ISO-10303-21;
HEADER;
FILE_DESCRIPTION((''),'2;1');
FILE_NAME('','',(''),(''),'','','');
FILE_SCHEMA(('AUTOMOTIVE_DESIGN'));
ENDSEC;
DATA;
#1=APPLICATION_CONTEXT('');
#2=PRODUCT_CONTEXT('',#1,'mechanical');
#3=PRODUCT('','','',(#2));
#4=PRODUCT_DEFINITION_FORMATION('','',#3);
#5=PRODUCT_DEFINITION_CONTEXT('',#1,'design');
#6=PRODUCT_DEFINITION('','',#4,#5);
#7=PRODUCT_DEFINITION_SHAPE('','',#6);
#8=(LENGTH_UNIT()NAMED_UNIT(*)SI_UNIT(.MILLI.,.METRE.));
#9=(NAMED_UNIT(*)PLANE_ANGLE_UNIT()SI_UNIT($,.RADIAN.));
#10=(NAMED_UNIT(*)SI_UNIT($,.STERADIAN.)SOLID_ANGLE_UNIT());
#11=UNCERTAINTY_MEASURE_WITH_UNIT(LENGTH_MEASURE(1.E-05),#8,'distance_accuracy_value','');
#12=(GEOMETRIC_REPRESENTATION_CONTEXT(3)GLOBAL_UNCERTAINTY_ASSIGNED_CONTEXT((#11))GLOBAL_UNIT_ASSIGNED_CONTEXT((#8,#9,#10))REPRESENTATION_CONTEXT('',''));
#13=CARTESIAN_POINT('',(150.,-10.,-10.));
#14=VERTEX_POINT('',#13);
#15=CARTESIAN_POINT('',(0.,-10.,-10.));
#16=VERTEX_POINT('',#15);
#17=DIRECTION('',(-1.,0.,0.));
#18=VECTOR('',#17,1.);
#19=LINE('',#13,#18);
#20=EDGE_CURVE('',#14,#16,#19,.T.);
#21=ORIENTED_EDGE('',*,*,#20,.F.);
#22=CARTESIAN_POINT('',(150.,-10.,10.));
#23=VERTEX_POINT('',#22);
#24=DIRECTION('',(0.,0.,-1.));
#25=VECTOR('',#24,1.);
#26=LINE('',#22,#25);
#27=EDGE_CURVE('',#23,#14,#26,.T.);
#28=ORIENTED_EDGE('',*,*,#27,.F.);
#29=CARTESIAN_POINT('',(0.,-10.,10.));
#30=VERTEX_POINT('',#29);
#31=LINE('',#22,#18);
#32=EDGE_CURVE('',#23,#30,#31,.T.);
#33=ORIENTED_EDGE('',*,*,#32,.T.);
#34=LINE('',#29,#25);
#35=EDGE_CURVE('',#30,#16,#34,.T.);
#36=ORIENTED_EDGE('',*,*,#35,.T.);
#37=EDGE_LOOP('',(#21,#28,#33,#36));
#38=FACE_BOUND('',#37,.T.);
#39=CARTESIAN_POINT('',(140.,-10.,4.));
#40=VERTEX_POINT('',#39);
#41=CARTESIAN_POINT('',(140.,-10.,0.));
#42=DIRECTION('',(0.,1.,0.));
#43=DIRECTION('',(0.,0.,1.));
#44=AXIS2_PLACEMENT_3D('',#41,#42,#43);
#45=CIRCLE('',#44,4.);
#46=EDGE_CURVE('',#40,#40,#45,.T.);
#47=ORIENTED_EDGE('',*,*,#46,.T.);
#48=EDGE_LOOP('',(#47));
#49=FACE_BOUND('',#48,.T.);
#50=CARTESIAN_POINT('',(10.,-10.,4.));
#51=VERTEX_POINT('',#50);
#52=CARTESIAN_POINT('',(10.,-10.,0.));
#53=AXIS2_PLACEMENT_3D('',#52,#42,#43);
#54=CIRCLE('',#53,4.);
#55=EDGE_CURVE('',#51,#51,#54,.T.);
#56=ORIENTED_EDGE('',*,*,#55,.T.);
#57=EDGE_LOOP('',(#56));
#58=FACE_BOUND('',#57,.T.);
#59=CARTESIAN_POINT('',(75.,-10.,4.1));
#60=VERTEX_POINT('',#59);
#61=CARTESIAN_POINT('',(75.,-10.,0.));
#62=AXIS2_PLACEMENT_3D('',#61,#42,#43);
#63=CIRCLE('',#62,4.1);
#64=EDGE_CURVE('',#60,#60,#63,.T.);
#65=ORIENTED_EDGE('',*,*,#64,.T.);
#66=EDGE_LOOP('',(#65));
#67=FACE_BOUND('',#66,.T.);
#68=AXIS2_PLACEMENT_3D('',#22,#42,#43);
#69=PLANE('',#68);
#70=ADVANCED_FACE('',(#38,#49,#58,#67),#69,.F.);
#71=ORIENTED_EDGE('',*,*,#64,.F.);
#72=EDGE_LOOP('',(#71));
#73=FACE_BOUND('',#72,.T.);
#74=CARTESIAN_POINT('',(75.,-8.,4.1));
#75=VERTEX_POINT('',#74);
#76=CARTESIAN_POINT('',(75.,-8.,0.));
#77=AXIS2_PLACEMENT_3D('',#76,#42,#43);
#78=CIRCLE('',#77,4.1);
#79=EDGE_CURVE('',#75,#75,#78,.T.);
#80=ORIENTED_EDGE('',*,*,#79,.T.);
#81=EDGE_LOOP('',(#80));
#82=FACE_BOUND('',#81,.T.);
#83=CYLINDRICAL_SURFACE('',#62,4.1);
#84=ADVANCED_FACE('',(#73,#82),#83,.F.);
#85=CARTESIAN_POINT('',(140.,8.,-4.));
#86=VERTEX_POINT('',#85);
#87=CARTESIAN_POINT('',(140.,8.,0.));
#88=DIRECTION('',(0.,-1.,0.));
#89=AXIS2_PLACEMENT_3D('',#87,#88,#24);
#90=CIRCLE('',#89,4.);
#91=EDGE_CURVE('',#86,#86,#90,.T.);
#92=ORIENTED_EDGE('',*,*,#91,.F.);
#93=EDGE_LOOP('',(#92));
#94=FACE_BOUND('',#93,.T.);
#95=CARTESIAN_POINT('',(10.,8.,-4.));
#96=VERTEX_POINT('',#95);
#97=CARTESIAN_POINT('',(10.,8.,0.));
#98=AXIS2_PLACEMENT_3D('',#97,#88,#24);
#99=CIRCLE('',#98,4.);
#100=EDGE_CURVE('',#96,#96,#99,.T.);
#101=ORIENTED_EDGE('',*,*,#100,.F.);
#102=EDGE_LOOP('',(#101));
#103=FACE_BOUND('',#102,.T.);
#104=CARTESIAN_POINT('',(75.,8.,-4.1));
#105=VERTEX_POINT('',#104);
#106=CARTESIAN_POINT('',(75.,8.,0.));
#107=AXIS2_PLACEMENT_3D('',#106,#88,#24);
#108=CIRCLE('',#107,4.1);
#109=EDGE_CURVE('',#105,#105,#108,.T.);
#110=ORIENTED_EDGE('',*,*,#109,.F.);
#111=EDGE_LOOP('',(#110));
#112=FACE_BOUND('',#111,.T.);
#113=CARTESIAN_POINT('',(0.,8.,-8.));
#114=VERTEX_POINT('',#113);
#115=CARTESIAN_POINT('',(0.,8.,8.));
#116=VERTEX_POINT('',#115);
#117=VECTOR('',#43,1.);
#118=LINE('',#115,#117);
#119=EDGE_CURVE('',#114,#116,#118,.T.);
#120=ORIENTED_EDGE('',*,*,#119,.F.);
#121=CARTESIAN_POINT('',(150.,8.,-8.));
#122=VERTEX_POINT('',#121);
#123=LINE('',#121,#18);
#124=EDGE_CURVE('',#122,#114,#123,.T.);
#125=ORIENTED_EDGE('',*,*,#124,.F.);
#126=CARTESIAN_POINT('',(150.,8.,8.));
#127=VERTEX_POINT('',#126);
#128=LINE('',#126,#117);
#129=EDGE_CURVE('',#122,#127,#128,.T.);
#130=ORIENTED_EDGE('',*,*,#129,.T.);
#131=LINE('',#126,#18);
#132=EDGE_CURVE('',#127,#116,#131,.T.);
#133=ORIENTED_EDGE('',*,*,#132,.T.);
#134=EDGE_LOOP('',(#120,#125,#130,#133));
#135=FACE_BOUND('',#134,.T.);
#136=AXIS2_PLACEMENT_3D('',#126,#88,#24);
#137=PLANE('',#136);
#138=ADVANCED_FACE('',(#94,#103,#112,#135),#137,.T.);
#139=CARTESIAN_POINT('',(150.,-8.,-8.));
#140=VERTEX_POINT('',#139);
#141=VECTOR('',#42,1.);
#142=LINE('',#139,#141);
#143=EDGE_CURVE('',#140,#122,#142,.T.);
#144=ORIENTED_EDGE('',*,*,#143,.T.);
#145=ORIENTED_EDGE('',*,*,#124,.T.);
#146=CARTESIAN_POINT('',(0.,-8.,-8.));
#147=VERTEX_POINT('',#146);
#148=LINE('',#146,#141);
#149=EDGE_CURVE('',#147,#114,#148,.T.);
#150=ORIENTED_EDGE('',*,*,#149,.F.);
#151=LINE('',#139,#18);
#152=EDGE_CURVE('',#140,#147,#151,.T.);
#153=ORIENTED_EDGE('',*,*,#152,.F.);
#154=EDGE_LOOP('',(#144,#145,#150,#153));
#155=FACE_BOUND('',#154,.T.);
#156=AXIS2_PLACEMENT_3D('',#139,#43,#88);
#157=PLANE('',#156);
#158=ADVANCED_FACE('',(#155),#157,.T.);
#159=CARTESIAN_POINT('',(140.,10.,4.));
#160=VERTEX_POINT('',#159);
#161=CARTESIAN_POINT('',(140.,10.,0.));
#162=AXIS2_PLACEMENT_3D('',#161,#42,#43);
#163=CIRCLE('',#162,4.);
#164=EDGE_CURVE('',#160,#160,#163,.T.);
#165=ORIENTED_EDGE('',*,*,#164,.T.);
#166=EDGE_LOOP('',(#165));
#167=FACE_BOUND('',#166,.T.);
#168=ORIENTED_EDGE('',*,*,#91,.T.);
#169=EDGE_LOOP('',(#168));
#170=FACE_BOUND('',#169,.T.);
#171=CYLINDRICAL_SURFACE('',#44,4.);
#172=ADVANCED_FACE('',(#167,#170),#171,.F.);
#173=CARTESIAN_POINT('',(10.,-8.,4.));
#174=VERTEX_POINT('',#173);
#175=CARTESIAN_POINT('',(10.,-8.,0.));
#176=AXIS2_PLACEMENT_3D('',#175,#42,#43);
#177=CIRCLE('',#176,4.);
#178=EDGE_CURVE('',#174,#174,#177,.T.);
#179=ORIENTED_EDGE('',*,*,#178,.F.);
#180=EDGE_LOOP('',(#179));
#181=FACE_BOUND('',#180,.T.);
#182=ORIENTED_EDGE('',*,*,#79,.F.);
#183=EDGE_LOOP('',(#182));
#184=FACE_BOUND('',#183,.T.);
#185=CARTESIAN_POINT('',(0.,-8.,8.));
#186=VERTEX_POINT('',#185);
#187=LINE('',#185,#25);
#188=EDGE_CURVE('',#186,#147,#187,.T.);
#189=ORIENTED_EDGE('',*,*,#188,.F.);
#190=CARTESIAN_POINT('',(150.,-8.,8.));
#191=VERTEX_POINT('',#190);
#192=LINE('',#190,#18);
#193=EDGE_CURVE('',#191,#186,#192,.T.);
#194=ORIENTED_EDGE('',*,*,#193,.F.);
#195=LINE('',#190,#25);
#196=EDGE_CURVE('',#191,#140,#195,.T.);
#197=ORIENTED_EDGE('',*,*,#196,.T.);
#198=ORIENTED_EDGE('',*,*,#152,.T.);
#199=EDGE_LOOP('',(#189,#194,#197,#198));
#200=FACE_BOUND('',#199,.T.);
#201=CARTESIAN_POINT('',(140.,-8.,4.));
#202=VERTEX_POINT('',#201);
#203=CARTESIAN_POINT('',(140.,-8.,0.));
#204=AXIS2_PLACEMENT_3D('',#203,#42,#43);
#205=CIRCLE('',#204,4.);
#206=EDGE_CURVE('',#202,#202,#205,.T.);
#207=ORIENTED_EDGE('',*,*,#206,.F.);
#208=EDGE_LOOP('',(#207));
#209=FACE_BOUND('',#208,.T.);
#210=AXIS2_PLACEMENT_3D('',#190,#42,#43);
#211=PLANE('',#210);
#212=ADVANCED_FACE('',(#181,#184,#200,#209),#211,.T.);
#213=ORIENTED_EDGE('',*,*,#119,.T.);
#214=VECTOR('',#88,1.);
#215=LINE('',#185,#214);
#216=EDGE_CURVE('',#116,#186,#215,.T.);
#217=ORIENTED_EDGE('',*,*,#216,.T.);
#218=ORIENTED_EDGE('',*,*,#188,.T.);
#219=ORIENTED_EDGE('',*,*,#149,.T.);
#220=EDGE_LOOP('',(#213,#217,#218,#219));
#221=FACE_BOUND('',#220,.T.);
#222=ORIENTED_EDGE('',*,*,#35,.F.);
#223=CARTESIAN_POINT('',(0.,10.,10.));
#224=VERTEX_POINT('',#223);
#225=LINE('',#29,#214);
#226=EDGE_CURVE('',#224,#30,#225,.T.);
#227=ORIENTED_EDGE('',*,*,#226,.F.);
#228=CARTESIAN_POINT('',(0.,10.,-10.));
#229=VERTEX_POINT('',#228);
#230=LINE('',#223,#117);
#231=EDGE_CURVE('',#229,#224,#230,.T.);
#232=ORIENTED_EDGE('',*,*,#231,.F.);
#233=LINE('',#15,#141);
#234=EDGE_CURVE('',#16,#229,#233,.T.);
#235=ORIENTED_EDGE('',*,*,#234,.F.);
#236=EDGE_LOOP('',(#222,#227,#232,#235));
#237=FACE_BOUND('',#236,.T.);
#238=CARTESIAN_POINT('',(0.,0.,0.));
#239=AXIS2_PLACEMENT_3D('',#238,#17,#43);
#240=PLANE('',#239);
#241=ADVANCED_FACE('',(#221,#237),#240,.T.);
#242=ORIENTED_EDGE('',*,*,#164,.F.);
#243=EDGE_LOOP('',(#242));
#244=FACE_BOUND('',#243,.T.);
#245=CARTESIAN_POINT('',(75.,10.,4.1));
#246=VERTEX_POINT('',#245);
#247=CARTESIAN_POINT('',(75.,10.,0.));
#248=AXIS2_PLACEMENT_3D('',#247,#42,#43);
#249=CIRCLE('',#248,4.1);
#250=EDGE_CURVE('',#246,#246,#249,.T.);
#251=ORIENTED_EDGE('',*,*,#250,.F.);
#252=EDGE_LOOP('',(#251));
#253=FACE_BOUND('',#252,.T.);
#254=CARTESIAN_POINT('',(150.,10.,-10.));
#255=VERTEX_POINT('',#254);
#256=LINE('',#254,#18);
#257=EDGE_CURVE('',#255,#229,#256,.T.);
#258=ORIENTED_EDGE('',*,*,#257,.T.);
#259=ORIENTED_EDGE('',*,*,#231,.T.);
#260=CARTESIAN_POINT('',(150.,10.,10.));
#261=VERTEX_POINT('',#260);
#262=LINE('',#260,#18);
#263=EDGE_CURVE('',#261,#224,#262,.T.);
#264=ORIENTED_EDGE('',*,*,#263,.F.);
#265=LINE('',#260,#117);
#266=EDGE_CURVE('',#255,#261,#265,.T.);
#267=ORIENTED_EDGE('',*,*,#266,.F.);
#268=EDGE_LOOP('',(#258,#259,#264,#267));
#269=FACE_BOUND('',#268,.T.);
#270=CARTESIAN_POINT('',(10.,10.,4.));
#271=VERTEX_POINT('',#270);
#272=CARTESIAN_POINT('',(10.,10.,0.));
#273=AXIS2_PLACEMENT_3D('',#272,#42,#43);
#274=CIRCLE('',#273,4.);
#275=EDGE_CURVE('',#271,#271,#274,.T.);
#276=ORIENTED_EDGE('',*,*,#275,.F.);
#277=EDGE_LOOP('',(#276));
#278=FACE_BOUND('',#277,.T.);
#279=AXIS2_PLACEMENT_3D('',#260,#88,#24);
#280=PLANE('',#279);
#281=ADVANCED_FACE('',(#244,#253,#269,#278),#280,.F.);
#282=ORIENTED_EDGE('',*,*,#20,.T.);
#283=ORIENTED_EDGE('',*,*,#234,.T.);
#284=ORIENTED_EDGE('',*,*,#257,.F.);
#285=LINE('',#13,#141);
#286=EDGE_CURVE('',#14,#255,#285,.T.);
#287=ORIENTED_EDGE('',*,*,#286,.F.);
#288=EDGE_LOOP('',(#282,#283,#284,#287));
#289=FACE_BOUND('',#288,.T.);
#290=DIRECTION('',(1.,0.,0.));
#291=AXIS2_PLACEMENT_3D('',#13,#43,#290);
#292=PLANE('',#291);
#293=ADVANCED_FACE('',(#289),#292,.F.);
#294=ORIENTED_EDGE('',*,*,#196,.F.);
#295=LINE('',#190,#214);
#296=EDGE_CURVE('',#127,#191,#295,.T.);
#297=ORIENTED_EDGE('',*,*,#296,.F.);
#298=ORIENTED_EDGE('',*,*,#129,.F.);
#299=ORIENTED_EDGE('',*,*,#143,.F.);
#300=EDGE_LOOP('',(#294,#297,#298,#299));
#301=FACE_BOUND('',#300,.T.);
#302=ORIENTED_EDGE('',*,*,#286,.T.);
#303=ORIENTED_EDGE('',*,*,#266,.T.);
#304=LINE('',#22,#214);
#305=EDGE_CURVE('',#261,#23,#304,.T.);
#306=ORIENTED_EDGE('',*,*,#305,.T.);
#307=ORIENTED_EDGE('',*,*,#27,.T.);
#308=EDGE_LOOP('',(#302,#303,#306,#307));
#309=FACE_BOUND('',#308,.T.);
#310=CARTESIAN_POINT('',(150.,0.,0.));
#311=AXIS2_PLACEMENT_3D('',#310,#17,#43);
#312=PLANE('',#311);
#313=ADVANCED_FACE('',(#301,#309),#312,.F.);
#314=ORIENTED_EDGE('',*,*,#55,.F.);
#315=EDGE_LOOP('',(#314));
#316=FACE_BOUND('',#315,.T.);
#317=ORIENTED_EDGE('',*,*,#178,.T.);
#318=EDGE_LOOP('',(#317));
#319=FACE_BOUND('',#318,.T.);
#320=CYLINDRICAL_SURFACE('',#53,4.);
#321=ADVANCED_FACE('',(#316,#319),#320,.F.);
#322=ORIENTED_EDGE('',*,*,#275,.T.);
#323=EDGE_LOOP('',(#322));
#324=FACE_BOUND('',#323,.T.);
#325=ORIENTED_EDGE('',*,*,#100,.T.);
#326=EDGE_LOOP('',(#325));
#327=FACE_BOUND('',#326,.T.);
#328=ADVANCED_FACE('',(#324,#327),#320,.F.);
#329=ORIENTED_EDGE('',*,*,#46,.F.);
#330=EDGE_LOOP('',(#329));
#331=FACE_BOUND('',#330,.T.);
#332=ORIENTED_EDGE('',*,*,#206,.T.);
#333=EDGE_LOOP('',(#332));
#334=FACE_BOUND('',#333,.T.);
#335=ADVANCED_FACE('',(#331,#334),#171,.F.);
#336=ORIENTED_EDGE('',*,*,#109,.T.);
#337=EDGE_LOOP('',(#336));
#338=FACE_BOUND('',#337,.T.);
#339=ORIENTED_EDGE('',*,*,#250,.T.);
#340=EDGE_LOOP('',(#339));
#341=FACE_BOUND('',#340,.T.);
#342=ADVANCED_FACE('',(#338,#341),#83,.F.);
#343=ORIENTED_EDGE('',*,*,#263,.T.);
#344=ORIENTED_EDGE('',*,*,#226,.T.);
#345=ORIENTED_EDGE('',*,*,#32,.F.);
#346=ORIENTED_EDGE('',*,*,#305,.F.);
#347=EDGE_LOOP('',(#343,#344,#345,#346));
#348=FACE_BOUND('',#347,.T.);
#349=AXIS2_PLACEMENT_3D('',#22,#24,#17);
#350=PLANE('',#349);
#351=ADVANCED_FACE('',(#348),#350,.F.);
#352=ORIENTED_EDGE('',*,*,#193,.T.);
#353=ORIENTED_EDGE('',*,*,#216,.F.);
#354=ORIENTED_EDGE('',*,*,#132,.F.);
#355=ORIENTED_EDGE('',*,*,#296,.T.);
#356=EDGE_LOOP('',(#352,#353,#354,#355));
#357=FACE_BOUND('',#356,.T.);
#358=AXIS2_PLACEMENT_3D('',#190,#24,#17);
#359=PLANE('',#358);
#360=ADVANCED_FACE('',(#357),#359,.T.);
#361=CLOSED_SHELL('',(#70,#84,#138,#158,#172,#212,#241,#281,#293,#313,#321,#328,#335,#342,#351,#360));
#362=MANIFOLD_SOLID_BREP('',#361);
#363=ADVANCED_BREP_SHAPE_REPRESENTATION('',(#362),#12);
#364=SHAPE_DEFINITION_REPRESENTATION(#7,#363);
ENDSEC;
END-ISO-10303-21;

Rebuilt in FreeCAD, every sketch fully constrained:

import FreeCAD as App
import Part
import Sketcher
Q = App.Units.Quantity


def add_polygon(sketch, points):
    """Adds a closed chain of lines whose ends are joined by coincident constraints."""
    first, n = sketch.GeometryCount, len(points)
    for a, b in zip(points, points[1:] + points[:1]):
        sketch.addGeometry(Part.LineSegment(App.Vector(*a, 0), App.Vector(*b, 0)), False)
    for i in range(n):
        sketch.addConstraint(Sketcher.Constraint("Coincident", first + i, 2, first + (i + 1) % n, 1))

doc = App.newDocument("Part")
params = doc.addObject("Spreadsheet::Sheet", "Params")
for row, (alias, value) in enumerate([
    ("sketch1_width", "20 mm"),
    ("sketch1_width2", "16 mm"),
    ("pad1_length", "150 mm"),
    ("sketch2_diameter", "8 mm"),
    ("sketch3_diameter", "8.2 mm"),
], start=1):
    params.set(f"A{row}", alias)
    params.set(f"B{row}", "=" + value)
    params.setAlias(f"B{row}", alias)

body = doc.addObject("PartDesign::Body", "Body")

# Sketch on YZ plane
sketch1 = doc.addObject("Sketcher::SketchObject", "Sketch")
body.addObject(sketch1)
sketch1.AttachmentSupport = (doc.YZ_Plane, [""])
sketch1.MapMode = "FlatFace"
add_polygon(sketch1, [(10, 10), (-10, 10), (-10, -10), (10, -10)])  # lines 0-3
add_polygon(sketch1, [(-8, -8), (-8, 8), (8, 8), (8, -8)])  # lines 4-7
sketch1.addConstraint(Sketcher.Constraint("Horizontal", 0))
sketch1.addConstraint(Sketcher.Constraint("Vertical", 1))
sketch1.addConstraint(Sketcher.Constraint("Horizontal", 2))
sketch1.addConstraint(Sketcher.Constraint("Vertical", 3))
sketch1.addConstraint(Sketcher.Constraint("Vertical", 4))
sketch1.addConstraint(Sketcher.Constraint("Horizontal", 5))
sketch1.addConstraint(Sketcher.Constraint("Vertical", 6))
sketch1.addConstraint(Sketcher.Constraint("Horizontal", 7))
sketch1.addConstraint(Sketcher.Constraint("Symmetric", 0, 2, 2, 2, -1, 1))
sketch1.addConstraint(Sketcher.Constraint("Symmetric", 4, 2, 6, 2, -1, 1))
sketch1.addConstraint(Sketcher.Constraint("Equal", 2, 1))
sketch1.addConstraint(Sketcher.Constraint("Equal", 7, 4))
sketch1.addConstraint(Sketcher.Constraint("DistanceX", 0, 2, 0, 1, Q("20 mm")))
sketch1.addConstraint(Sketcher.Constraint("DistanceX", 5, 1, 5, 2, Q("16 mm")))
sketch1.setExpression("Constraints[20]", "Params.sketch1_width")
sketch1.setExpression("Constraints[21]", "Params.sketch1_width2")
pad1 = doc.addObject("PartDesign::Pad", "Pad")
body.addObject(pad1)
pad1.Profile = sketch1
pad1.setExpression("Length", "Params.pad1_length")

# Sketch on XZ plane
sketch2 = doc.addObject("Sketcher::SketchObject", "Sketch001")
body.addObject(sketch2)
sketch2.AttachmentSupport = (doc.XZ_Plane, [""])
sketch2.MapMode = "FlatFace"
sketch2.AttachmentOffset = App.Placement(App.Vector(0, 0, -10), App.Rotation())
sketch2.addGeometry(Part.Circle(App.Vector(10, 0, 0), App.Vector(0, 0, 1), 4), False)
sketch2.addGeometry(Part.Circle(App.Vector(140, 0, 0), App.Vector(0, 0, 1), 4), False)
sketch2.addConstraint(Sketcher.Constraint("Equal", 0, 1))
sketch2.addConstraint(Sketcher.Constraint("PointOnObject", 0, 3, -1))
sketch2.addConstraint(Sketcher.Constraint("PointOnObject", 1, 3, -1))
sketch2.addConstraint(Sketcher.Constraint("Diameter", 0, Q("8 mm")))
sketch2.addConstraint(Sketcher.Constraint("DistanceX", -1, 1, 0, 3, Q("10 mm")))
sketch2.addConstraint(Sketcher.Constraint("DistanceX", -1, 1, 1, 3, Q("140 mm")))
sketch2.setExpression("Constraints[3]", "Params.sketch2_diameter")
pocket1 = doc.addObject("PartDesign::Pocket", "Pocket")
body.addObject(pocket1)
pocket1.Profile = sketch2
pocket1.Type = "ThroughAll"
pocket1.Reversed = True

# Sketch on XZ plane
sketch3 = doc.addObject("Sketcher::SketchObject", "Sketch002")
body.addObject(sketch3)
sketch3.AttachmentSupport = (doc.XZ_Plane, [""])
sketch3.MapMode = "FlatFace"
sketch3.AttachmentOffset = App.Placement(App.Vector(0, 0, -10), App.Rotation())
sketch3.addGeometry(Part.Circle(App.Vector(75, 0, 0), App.Vector(0, 0, 1), 4.1), False)
sketch3.addConstraint(Sketcher.Constraint("PointOnObject", 0, 3, -1))
sketch3.addConstraint(Sketcher.Constraint("Diameter", 0, Q("8.2 mm")))
sketch3.addConstraint(Sketcher.Constraint("DistanceX", -1, 1, 0, 3, Q("75 mm")))
sketch3.setExpression("Constraints[1]", "Params.sketch3_diameter")
pocket2 = doc.addObject("PartDesign::Pocket", "Pocket001")
body.addObject(pocket2)
pocket2.Profile = sketch3
pocket2.Type = "ThroughAll"
pocket2.Reversed = True

doc.recompute()
